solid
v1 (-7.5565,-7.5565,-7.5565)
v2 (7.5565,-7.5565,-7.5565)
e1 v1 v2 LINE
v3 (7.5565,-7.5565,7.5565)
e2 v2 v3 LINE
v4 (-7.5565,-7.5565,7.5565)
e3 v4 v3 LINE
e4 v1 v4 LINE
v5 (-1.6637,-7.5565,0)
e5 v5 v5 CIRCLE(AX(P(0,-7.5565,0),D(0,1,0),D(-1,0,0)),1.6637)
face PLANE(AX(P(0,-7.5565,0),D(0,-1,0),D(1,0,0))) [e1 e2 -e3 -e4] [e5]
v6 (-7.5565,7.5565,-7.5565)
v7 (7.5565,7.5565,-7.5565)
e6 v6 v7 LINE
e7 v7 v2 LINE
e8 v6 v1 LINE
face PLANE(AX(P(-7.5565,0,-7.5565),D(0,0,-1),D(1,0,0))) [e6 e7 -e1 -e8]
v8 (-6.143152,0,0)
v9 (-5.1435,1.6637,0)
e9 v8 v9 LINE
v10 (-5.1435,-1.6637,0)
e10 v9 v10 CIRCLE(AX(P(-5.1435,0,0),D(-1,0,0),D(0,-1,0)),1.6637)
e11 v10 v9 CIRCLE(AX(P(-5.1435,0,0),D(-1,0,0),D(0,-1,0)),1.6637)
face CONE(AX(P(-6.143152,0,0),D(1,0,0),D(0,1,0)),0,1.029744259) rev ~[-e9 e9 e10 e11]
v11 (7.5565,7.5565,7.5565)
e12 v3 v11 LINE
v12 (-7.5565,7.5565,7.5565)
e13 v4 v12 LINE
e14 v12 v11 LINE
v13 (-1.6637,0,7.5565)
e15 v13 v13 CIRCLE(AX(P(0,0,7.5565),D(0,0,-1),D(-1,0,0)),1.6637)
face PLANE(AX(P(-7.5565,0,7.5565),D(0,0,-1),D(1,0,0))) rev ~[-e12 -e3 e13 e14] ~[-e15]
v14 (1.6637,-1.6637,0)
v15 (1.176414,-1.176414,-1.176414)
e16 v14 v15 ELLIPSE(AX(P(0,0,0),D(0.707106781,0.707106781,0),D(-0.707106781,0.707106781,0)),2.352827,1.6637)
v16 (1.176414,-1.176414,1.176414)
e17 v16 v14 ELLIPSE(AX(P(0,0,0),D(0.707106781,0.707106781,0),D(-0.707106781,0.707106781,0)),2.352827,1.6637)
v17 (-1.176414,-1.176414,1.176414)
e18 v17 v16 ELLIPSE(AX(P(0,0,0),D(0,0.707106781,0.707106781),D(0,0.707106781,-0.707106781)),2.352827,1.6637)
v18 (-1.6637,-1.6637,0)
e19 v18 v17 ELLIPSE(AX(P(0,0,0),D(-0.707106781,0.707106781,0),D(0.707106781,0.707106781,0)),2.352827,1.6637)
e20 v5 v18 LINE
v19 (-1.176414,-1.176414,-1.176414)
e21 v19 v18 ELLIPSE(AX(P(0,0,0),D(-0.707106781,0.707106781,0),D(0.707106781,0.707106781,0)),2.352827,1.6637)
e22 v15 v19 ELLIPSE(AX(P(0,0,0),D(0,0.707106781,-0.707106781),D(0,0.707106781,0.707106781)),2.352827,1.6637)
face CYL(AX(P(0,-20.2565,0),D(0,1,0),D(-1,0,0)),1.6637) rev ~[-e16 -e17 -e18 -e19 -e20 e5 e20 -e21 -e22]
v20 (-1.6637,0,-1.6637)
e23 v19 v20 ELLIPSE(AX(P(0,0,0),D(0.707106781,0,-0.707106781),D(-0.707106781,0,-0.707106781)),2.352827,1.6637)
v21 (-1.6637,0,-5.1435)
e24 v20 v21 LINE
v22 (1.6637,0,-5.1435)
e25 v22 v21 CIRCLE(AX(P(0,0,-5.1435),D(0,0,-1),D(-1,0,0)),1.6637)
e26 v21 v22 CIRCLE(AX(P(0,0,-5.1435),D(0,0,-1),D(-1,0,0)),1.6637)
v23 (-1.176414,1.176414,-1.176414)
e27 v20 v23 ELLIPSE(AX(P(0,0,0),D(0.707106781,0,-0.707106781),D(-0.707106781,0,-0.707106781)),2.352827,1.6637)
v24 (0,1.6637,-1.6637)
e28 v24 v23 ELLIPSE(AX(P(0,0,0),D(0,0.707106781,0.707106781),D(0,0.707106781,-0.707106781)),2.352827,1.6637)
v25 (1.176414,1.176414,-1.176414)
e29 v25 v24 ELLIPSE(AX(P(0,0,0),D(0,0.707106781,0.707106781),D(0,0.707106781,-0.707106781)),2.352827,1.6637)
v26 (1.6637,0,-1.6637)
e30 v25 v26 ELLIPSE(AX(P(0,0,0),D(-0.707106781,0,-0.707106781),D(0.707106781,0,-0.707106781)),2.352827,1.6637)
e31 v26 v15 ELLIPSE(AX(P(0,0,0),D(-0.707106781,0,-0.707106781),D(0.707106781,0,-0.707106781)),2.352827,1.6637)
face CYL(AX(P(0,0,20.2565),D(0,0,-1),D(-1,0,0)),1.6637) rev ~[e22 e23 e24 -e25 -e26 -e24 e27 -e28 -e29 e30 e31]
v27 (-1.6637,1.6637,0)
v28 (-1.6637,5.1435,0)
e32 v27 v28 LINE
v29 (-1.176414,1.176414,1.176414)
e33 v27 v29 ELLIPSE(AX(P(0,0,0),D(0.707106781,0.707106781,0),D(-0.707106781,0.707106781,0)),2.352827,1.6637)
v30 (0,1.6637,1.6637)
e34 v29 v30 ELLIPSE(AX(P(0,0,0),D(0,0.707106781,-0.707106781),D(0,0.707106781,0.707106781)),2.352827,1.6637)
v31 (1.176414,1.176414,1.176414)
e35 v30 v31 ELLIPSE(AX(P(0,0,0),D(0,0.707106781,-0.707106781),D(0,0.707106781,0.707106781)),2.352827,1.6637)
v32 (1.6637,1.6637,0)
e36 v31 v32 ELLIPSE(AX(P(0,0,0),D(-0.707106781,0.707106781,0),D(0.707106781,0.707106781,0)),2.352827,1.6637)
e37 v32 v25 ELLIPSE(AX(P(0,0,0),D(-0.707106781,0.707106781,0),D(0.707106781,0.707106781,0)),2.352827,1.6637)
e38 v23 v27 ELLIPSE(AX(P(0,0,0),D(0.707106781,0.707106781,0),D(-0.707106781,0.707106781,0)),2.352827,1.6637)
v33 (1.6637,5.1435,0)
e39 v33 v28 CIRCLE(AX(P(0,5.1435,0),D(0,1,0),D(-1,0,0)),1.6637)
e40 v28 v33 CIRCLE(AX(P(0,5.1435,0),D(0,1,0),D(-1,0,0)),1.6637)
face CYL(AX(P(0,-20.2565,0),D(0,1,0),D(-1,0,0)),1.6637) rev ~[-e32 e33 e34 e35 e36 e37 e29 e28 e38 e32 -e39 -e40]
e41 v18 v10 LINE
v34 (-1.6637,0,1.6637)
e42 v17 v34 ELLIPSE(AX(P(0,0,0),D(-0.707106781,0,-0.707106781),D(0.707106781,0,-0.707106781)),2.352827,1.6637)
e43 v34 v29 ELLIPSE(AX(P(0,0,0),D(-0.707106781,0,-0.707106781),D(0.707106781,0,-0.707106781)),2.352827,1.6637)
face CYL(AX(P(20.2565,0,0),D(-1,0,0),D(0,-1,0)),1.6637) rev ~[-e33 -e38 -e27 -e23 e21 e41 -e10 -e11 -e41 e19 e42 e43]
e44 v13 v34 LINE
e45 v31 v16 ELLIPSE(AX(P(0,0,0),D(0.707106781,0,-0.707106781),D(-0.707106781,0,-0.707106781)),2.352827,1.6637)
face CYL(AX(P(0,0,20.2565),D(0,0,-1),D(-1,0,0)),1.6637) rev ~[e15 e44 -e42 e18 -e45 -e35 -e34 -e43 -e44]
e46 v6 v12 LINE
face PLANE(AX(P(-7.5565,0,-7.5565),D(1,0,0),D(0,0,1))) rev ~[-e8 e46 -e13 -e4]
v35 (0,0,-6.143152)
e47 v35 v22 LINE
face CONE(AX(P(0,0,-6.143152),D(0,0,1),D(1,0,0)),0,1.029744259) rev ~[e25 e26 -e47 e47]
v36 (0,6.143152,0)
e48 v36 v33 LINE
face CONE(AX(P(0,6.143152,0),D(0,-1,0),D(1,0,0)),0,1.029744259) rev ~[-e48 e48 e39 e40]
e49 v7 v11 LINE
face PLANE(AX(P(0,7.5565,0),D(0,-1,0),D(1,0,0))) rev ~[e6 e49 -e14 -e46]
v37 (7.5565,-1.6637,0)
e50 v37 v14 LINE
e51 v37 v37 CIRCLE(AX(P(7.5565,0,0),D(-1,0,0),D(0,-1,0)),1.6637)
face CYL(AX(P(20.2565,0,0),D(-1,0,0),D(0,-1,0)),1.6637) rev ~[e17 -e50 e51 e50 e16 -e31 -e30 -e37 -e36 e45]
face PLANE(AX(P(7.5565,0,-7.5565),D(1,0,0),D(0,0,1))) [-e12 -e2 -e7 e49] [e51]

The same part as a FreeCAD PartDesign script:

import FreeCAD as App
import Part
import Sketcher
from FreeCAD import Vector
Q = App.Units.Quantity


def add_polygon(sketch, points):
    """Adds a closed chain of lines whose ends are joined by coincident constraints."""
    first, n = sketch.GeometryCount, len(points)
    for a, b in zip(points, points[1:] + points[:1]):
        sketch.addGeometry(Part.LineSegment(App.Vector(*a, 0), App.Vector(*b, 0)), False)
    for i in range(n):
        sketch.addConstraint(Sketcher.Constraint("Coincident", first + i, 2, first + (i + 1) % n, 1))

doc = App.newDocument("Part")
body = doc.addObject("PartDesign::Body", "Body")

sketch1 = doc.addObject("Sketcher::SketchObject", "Sketch")
body.addObject(sketch1)
sketch1.AttachmentSupport = (doc.XZ_Plane, [""])
sketch1.MapMode = "FlatFace"
add_polygon(sketch1, [(-7.5565, 7.5565), (-7.5565, -7.5565), (7.5565, -7.5565), (7.5565, 7.5565)])
sketch1.addConstraint([
    Sketcher.Constraint("Vertical", 0),
    Sketcher.Constraint("Horizontal", 1),
    Sketcher.Constraint("Vertical", 2),
    Sketcher.Constraint("Horizontal", 3),
    Sketcher.Constraint("Symmetric", 0, 2, 2, 2, -1, 1),
    Sketcher.Constraint("Equal", 3, 0),
    Sketcher.Constraint("DistanceX", 1, 1, 1, 2, Q("0.595 in")),
])
pad1 = doc.addObject("PartDesign::Pad", "Pad")
body.addObject(pad1)
pad1.Profile = sketch1
pad1.Length = Q("0.595 in")
pad1.Midplane = True

sketch2 = doc.addObject("Sketcher::SketchObject", "Sketch001")
body.addObject(sketch2)
sketch2.AttachmentSupport = (doc.XZ_Plane, [""])
sketch2.MapMode = "FlatFace"
sketch2.AttachmentOffset = App.Placement(Vector(0, 0, 0.2975 * 25.4), App.Rotation())
sketch2.addGeometry(Part.Circle(Vector(0, 0, 0), Vector(0, 0, 1), 1.6637), False)
sketch2.addConstraint([
    Sketcher.Constraint("Coincident", 0, 3, -1, 1),
    Sketcher.Constraint("Diameter", 0, Q("0.131 in")),
])
doc.recompute()
hole = doc.addObject("PartDesign::Hole", "Hole")
body.addObject(hole)
hole.Profile = sketch2
hole.ThreadType = "None"
hole.Diameter = Q("0.131 in")
hole.DepthType = "Dimension"
hole.Depth = Q("0.5 in")
hole.DrillPoint = "Angled"
hole.DrillPointAngle = 118

sketch3 = doc.addObject("Sketcher::SketchObject", "Sketch002")
body.addObject(sketch3)
sketch3.AttachmentSupport = (doc.XY_Plane, [""])
sketch3.MapMode = "FlatFace"
sketch3.AttachmentOffset = App.Placement(Vector(0, 0, 0.2975 * 25.4), App.Rotation())
sketch3.addGeometry(Part.Circle(Vector(0, 0, 0), Vector(0, 0, 1), 1.6637), False)
sketch3.addConstraint([
    Sketcher.Constraint("Coincident", 0, 3, -1, 1),
    Sketcher.Constraint("Diameter", 0, Q("0.131 in")),
])
doc.recompute()
hole2 = doc.addObject("PartDesign::Hole", "Hole001")
body.addObject(hole2)
hole2.Profile = sketch3
hole2.ThreadType = "None"
hole2.Diameter = Q("0.131 in")
hole2.DepthType = "Dimension"
hole2.Depth = Q("0.5 in")
hole2.DrillPoint = "Angled"
hole2.DrillPointAngle = 118

sketch4 = doc.addObject("Sketcher::SketchObject", "Sketch003")
body.addObject(sketch4)
sketch4.AttachmentSupport = (doc.YZ_Plane, [""])
sketch4.MapMode = "FlatFace"
sketch4.AttachmentOffset = App.Placement(Vector(0, 0, 0.2975 * 25.4), App.Rotation())
sketch4.addGeometry(Part.Circle(Vector(0, 0, 0), Vector(0, 0, 1), 1.6637), False)
sketch4.addConstraint([
    Sketcher.Constraint("Coincident", 0, 3, -1, 1),
    Sketcher.Constraint("Diameter", 0, Q("0.131 in")),
])
doc.recompute()
hole3 = doc.addObject("PartDesign::Hole", "Hole002")
body.addObject(hole3)
hole3.Profile = sketch4
hole3.ThreadType = "None"
hole3.Diameter = Q("0.131 in")
hole3.DepthType = "Dimension"
hole3.Depth = Q("0.5 in")
hole3.DrillPoint = "Angled"
hole3.DrillPointAngle = 118

doc.recompute()
